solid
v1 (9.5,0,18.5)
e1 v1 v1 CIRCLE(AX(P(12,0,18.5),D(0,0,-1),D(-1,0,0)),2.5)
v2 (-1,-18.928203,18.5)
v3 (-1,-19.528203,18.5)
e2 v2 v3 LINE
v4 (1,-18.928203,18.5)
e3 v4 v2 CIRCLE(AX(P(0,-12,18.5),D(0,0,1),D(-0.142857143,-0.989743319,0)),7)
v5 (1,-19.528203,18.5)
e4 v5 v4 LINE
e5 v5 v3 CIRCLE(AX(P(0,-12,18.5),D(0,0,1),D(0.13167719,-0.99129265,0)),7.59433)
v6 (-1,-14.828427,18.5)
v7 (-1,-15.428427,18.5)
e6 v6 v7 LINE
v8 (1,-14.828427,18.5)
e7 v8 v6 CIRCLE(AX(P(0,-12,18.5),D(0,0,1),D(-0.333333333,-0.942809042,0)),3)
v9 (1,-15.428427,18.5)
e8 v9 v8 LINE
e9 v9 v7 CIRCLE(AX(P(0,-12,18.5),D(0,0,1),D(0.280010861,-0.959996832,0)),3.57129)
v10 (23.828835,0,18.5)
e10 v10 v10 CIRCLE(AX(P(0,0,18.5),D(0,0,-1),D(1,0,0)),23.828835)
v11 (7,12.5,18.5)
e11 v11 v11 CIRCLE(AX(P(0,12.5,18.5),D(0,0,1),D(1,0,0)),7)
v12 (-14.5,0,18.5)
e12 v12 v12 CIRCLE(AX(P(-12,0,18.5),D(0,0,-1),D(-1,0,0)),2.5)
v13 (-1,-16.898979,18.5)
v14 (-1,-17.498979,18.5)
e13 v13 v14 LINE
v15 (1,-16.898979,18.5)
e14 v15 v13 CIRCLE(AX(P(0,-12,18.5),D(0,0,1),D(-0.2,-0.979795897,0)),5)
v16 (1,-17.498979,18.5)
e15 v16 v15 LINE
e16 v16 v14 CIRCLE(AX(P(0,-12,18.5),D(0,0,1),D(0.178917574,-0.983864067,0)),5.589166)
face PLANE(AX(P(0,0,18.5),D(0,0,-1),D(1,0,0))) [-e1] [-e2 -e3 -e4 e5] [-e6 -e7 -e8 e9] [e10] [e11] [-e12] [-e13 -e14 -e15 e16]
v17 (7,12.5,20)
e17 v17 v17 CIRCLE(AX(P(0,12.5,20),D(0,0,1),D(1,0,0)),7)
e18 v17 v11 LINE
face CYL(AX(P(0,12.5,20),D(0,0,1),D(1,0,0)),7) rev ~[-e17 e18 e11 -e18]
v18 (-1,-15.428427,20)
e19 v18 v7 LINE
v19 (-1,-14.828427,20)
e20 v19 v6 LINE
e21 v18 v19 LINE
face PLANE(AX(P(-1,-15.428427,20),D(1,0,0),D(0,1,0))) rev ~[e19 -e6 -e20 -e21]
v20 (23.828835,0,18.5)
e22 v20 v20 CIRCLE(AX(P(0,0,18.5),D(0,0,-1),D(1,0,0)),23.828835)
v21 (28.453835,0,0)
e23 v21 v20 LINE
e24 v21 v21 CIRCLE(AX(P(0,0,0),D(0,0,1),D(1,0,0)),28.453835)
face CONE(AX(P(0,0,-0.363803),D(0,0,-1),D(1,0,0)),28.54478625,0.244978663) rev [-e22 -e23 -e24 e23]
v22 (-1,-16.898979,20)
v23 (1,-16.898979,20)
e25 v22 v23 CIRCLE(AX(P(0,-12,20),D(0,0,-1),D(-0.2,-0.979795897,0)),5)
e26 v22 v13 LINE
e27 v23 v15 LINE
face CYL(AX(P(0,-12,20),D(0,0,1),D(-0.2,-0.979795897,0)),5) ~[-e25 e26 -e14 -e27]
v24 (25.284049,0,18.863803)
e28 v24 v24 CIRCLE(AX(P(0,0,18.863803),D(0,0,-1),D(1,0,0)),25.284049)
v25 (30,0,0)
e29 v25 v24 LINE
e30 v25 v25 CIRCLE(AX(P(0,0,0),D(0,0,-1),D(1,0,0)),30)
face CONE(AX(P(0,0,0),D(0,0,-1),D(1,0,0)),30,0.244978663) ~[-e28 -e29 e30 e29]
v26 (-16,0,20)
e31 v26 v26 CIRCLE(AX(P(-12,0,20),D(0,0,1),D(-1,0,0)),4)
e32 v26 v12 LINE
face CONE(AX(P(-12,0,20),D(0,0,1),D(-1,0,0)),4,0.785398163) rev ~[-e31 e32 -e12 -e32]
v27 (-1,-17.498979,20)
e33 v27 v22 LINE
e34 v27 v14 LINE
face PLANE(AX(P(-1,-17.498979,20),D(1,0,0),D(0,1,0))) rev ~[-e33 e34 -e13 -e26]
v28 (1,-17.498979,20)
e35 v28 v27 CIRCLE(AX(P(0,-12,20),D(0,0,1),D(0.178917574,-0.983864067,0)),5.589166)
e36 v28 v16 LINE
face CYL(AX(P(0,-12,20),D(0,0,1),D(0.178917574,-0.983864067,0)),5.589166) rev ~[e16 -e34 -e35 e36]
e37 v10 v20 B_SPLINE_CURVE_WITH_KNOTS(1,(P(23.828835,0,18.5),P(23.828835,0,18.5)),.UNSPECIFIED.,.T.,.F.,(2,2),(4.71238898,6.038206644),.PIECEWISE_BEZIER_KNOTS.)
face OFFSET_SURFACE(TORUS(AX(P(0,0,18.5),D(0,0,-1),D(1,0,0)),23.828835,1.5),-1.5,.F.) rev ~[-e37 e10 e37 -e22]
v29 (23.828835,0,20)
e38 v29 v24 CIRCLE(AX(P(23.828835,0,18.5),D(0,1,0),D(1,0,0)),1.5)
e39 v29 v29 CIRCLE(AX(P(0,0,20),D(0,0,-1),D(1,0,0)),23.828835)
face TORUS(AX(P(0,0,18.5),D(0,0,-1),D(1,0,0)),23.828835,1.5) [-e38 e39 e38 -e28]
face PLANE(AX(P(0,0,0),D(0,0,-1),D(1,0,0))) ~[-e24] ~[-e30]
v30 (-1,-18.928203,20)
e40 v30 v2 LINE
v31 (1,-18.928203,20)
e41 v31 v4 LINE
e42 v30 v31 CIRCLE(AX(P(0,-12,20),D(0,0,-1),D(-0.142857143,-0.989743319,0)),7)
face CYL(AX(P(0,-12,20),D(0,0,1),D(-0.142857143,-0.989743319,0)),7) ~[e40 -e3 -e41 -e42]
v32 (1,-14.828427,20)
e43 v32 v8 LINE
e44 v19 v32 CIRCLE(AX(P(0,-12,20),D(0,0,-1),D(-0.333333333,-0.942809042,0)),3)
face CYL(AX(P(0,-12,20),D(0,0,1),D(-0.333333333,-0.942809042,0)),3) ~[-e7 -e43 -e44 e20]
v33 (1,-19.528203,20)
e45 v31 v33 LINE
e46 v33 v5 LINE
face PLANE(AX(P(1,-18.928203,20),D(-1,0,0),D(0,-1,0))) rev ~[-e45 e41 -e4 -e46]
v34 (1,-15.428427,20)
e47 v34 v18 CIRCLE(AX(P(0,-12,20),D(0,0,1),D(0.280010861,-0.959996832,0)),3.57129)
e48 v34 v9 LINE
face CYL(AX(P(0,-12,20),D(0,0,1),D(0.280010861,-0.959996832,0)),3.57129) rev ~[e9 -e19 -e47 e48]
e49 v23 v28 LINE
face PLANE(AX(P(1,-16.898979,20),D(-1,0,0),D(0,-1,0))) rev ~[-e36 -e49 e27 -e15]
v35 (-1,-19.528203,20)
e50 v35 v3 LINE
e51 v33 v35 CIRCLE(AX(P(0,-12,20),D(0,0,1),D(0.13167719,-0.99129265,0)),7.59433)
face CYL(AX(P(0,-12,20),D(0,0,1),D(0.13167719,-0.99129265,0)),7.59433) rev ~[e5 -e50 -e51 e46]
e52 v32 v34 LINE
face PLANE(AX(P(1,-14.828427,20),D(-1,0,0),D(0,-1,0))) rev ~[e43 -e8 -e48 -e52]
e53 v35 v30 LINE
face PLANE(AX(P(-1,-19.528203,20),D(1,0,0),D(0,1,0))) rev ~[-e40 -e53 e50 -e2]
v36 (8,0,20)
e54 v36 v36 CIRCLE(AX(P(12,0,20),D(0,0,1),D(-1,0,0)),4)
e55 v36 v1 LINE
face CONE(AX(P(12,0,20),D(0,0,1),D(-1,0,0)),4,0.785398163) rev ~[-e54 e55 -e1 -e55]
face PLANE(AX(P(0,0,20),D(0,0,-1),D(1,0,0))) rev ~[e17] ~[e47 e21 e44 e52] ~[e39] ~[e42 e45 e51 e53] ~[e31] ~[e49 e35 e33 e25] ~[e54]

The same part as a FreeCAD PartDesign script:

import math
import FreeCAD as App
import Part
import Sketcher
Q = App.Units.Quantity


def edges_at(feature, points):
    """Names of the edges that pass closest to the given points."""
    edges = feature.Shape.Edges
    near = lambda p: min(range(len(edges)), key=lambda i: edges[i].distToShape(Part.Vertex(*p))[0])
    return sorted({f"Edge{near(p) + 1}" for p in points})


def faces_at(feature, points):
    """Names of the faces that lie closest to the given points."""
    faces = feature.Shape.Faces
    near = lambda p: min(range(len(faces)), key=lambda i: faces[i].distToShape(Part.Vertex(*p))[0])
    return sorted({f"Face{near(p) + 1}" for p in points})

doc = App.newDocument("Part")
body = doc.addObject("PartDesign::Body", "Body")

# Sketch on XZ plane
sketch1 = doc.addObject("Sketcher::SketchObject", "Sketch")
body.addObject(sketch1)
sketch1.AttachmentSupport = (doc.XZ_Plane, [""])
sketch1.MapMode = "FlatFace"
sketch1.addGeometry([
    Part.LineSegment(App.Vector(25, 20, 0), App.Vector(0, 20, 0)),
    Part.LineSegment(App.Vector(0, 20, 0), App.Vector(0, 0, 0)),
    Part.LineSegment(App.Vector(0, 0, 0), App.Vector(30, 0, 0)),
    Part.LineSegment(App.Vector(30, 0, 0), App.Vector(25, 20, 0)),
], False)
sketch1.addConstraint([
    Sketcher.Constraint("Coincident", 0, 2, 1, 1),
    Sketcher.Constraint("Coincident", 1, 2, 2, 1),
    Sketcher.Constraint("Coincident", 2, 2, 3, 1),
    Sketcher.Constraint("Coincident", 3, 2, 0, 1),
    Sketcher.Constraint("Horizontal", 0),
    Sketcher.Constraint("Vertical", 1),
    Sketcher.Constraint("Horizontal", 2),
    Sketcher.Constraint("Coincident", 1, 2, -1, 1),
    Sketcher.Constraint("DistanceX", 0, 2, 0, 1, Q("25 mm")),
    Sketcher.Constraint("DistanceX", 2, 1, 2, 2, Q("30 mm")),
    Sketcher.Constraint("DistanceY", 1, 2, 1, 1, Q("20 mm")),
])
revolution = doc.addObject("PartDesign::Revolution", "Revolution")
body.addObject(revolution)
revolution.Profile = sketch1
revolution.ReferenceAxis = (sketch1, ["V_Axis"])
revolution.Angle = 360
doc.recompute()

fillet = doc.addObject("PartDesign::Fillet", "Fillet")
body.addObject(fillet)
fillet.Base = (revolution, edges_at(revolution, [(-25, 0, 20)]))
fillet.Radius = 1.5
doc.recompute()

thickness = doc.addObject("PartDesign::Thickness", "Thickness")
body.addObject(thickness)
thickness.Base = (fillet, faces_at(fillet, [(0, 0, 0)]))
thickness.Value = 1.5
thickness.Reversed = True
thickness.Join = "Intersection"

# Sketch on XY plane
sketch2 = doc.addObject("Sketcher::SketchObject", "Sketch001")
body.addObject(sketch2)
sketch2.AttachmentSupport = (doc.XY_Plane, [""])
sketch2.MapMode = "FlatFace"
sketch2.AttachmentOffset = App.Placement(App.Vector(0, 0, 20), App.Rotation())
sketch2.addGeometry(Part.Circle(App.Vector(0, 12, 0), App.Vector(0, 0, 1), 7), False)
sketch2.addConstraint([
    Sketcher.Constraint("PointOnObject", 0, 3, -2),
    Sketcher.Constraint("Diameter", 0, Q("14 mm")),
    Sketcher.Constraint("DistanceY", -1, 1, 0, 3, Q("12.5 mm")),
])
pocket1 = doc.addObject("PartDesign::Pocket", "Pocket")
body.addObject(pocket1)
pocket1.Profile = sketch2
pocket1.Type = "ThroughAll"

# Sketch on XY plane
sketch3 = doc.addObject("Sketcher::SketchObject", "Sketch002")
body.addObject(sketch3)
sketch3.AttachmentSupport = (doc.XY_Plane, [""])
sketch3.MapMode = "FlatFace"
sketch3.AttachmentOffset = App.Placement(App.Vector(0, 0, 20), App.Rotation())
sketch3.addGeometry([
    Part.Circle(App.Vector(12, 0, 0), App.Vector(0, 0, 1), 2),
    Part.Circle(App.Vector(-12, 0, 0), App.Vector(0, 0, 1), 2),
], False)
sketch3.addConstraint([
    Sketcher.Constraint("Equal", 0, 1),
    Sketcher.Constraint("Symmetric", 0, 3, 1, 3, -1, 1),
    Sketcher.Constraint("PointOnObject", 0, 3, -1),
    Sketcher.Constraint("Diameter", 0, Q("4 mm")),
    Sketcher.Constraint("DistanceX", -1, 1, 0, 3, Q("12 mm")),
])
doc.recompute()
hole = doc.addObject("PartDesign::Hole", "Hole")
body.addObject(hole)
hole.Profile = sketch3
hole.ThreadType = "None"
hole.Diameter = 4
hole.DepthType = "ThroughAll"
hole.HoleCutType = "Countersink"
hole.HoleCutDiameter = 8
hole.HoleCutCountersinkAngle = 90

# Sketch on XY plane
sketch4 = doc.addObject("Sketcher::SketchObject", "Sketch003")
body.addObject(sketch4)
sketch4.AttachmentSupport = (doc.XY_Plane, [""])
sketch4.MapMode = "FlatFace"
sketch4.AttachmentOffset = App.Placement(App.Vector(0, 0, 20), App.Rotation())
sketch4.addGeometry([
    Part.ArcOfCircle(Part.Circle(App.Vector(0, -12, 0), App.Vector(0, 0, 1), 3), math.radians(-71), math.radians(251)),  # 0
    Part.LineSegment(App.Vector(1, -14.8, 0), App.Vector(1, -15.4, 0)),  # 1
    Part.ArcOfCircle(Part.Circle(App.Vector(0, -12, 0), App.Vector(0, 0, 1), 3.6), math.radians(-74), math.radians(254)),  # 2
    Part.LineSegment(App.Vector(-1, -15.4, 0), App.Vector(-1, -14.8, 0)),  # 3
    Part.ArcOfCircle(Part.Circle(App.Vector(0, -12, 0), App.Vector(0, 0, 1), 5), math.radians(-78), math.radians(258)),  # 4
    Part.LineSegment(App.Vector(1, -16.9, 0), App.Vector(1, -17.5, 0)),  # 5
    Part.ArcOfCircle(Part.Circle(App.Vector(0, -12, 0), App.Vector(0, 0, 1), 5.6), math.radians(-80), math.radians(260)),  # 6
    Part.LineSegment(App.Vector(-1, -17.5, 0), App.Vector(-1, -16.9, 0)),  # 7
    Part.ArcOfCircle(Part.Circle(App.Vector(0, -12, 0), App.Vector(0, 0, 1), 7), math.radians(-82), math.radians(262)),  # 8
    Part.LineSegment(App.Vector(1, -18.9, 0), App.Vector(1, -19.5, 0)),  # 9
    Part.ArcOfCircle(Part.Circle(App.Vector(0, -12, 0), App.Vector(0, 0, 1), 7.6), math.radians(-82), math.radians(262)),  # 10
    Part.LineSegment(App.Vector(-1, -19.5, 0), App.Vector(-1, -18.9, 0)),  # 11
], False)
sketch4.addConstraint([
    Sketcher.Constraint("Coincident", 0, 1, 1, 1),
    Sketcher.Constraint("Coincident", 1, 2, 2, 1),
    Sketcher.Constraint("Coincident", 2, 2, 3, 1),
    Sketcher.Constraint("Coincident", 3, 2, 0, 2),
    Sketcher.Constraint("Coincident", 4, 1, 5, 1),
    Sketcher.Constraint("Coincident", 5, 2, 6, 1),
    Sketcher.Constraint("Coincident", 6, 2, 7, 1),
    Sketcher.Constraint("Coincident", 7, 2, 4, 2),
    Sketcher.Constraint("Coincident", 8, 1, 9, 1),
    Sketcher.Constraint("Coincident", 9, 2, 10, 1),
    Sketcher.Constraint("Coincident", 10, 2, 11, 1),
    Sketcher.Constraint("Coincident", 11, 2, 8, 2),
    Sketcher.Constraint("Vertical", 1),
    Sketcher.Constraint("Vertical", 3),
    Sketcher.Constraint("Vertical", 5),
    Sketcher.Constraint("Vertical", 7),
    Sketcher.Constraint("Vertical", 9),
    Sketcher.Constraint("Vertical", 11),
    Sketcher.Constraint("Coincident", 2, 3, 0, 3),
    Sketcher.Constraint("Coincident", 4, 3, 0, 3),
    Sketcher.Constraint("Coincident", 6, 3, 0, 3),
    Sketcher.Constraint("Coincident", 8, 3, 0, 3),
    Sketcher.Constraint("Coincident", 10, 3, 0, 3),
    Sketcher.Constraint("Symmetric", 1, 2, 2, 2, -2),
    Sketcher.Constraint("Horizontal", 5, 2, 6, 2),
    Sketcher.Constraint("Horizontal", 9, 2, 10, 2),
    Sketcher.Constraint("Vertical", 1, 2, 4, 1),
    Sketcher.Constraint("Vertical", 5, 2, 8, 1),
    Sketcher.Constraint("Equal", 3, 5),
    Sketcher.Constraint("Equal", 7, 9),
    Sketcher.Constraint("Radius", 0, Q("3 mm")),
    Sketcher.Constraint("Radius", 4, Q("5 mm")),
    Sketcher.Constraint("Radius", 8, Q("7 mm")),
    Sketcher.Constraint("DistanceY", 1, 2, 1, 1, Q("0.6 mm")),
    Sketcher.Constraint("DistanceY", 0, 3, -1, 1, Q("12 mm")),
    Sketcher.Constraint("DistanceX", -1, 1, 0, 1, Q("1 mm")),
])
pocket2 = doc.addObject("PartDesign::Pocket", "Pocket001")
body.addObject(pocket2)
pocket2.Profile = sketch4
pocket2.Type = "ThroughAll"

doc.recompute()
